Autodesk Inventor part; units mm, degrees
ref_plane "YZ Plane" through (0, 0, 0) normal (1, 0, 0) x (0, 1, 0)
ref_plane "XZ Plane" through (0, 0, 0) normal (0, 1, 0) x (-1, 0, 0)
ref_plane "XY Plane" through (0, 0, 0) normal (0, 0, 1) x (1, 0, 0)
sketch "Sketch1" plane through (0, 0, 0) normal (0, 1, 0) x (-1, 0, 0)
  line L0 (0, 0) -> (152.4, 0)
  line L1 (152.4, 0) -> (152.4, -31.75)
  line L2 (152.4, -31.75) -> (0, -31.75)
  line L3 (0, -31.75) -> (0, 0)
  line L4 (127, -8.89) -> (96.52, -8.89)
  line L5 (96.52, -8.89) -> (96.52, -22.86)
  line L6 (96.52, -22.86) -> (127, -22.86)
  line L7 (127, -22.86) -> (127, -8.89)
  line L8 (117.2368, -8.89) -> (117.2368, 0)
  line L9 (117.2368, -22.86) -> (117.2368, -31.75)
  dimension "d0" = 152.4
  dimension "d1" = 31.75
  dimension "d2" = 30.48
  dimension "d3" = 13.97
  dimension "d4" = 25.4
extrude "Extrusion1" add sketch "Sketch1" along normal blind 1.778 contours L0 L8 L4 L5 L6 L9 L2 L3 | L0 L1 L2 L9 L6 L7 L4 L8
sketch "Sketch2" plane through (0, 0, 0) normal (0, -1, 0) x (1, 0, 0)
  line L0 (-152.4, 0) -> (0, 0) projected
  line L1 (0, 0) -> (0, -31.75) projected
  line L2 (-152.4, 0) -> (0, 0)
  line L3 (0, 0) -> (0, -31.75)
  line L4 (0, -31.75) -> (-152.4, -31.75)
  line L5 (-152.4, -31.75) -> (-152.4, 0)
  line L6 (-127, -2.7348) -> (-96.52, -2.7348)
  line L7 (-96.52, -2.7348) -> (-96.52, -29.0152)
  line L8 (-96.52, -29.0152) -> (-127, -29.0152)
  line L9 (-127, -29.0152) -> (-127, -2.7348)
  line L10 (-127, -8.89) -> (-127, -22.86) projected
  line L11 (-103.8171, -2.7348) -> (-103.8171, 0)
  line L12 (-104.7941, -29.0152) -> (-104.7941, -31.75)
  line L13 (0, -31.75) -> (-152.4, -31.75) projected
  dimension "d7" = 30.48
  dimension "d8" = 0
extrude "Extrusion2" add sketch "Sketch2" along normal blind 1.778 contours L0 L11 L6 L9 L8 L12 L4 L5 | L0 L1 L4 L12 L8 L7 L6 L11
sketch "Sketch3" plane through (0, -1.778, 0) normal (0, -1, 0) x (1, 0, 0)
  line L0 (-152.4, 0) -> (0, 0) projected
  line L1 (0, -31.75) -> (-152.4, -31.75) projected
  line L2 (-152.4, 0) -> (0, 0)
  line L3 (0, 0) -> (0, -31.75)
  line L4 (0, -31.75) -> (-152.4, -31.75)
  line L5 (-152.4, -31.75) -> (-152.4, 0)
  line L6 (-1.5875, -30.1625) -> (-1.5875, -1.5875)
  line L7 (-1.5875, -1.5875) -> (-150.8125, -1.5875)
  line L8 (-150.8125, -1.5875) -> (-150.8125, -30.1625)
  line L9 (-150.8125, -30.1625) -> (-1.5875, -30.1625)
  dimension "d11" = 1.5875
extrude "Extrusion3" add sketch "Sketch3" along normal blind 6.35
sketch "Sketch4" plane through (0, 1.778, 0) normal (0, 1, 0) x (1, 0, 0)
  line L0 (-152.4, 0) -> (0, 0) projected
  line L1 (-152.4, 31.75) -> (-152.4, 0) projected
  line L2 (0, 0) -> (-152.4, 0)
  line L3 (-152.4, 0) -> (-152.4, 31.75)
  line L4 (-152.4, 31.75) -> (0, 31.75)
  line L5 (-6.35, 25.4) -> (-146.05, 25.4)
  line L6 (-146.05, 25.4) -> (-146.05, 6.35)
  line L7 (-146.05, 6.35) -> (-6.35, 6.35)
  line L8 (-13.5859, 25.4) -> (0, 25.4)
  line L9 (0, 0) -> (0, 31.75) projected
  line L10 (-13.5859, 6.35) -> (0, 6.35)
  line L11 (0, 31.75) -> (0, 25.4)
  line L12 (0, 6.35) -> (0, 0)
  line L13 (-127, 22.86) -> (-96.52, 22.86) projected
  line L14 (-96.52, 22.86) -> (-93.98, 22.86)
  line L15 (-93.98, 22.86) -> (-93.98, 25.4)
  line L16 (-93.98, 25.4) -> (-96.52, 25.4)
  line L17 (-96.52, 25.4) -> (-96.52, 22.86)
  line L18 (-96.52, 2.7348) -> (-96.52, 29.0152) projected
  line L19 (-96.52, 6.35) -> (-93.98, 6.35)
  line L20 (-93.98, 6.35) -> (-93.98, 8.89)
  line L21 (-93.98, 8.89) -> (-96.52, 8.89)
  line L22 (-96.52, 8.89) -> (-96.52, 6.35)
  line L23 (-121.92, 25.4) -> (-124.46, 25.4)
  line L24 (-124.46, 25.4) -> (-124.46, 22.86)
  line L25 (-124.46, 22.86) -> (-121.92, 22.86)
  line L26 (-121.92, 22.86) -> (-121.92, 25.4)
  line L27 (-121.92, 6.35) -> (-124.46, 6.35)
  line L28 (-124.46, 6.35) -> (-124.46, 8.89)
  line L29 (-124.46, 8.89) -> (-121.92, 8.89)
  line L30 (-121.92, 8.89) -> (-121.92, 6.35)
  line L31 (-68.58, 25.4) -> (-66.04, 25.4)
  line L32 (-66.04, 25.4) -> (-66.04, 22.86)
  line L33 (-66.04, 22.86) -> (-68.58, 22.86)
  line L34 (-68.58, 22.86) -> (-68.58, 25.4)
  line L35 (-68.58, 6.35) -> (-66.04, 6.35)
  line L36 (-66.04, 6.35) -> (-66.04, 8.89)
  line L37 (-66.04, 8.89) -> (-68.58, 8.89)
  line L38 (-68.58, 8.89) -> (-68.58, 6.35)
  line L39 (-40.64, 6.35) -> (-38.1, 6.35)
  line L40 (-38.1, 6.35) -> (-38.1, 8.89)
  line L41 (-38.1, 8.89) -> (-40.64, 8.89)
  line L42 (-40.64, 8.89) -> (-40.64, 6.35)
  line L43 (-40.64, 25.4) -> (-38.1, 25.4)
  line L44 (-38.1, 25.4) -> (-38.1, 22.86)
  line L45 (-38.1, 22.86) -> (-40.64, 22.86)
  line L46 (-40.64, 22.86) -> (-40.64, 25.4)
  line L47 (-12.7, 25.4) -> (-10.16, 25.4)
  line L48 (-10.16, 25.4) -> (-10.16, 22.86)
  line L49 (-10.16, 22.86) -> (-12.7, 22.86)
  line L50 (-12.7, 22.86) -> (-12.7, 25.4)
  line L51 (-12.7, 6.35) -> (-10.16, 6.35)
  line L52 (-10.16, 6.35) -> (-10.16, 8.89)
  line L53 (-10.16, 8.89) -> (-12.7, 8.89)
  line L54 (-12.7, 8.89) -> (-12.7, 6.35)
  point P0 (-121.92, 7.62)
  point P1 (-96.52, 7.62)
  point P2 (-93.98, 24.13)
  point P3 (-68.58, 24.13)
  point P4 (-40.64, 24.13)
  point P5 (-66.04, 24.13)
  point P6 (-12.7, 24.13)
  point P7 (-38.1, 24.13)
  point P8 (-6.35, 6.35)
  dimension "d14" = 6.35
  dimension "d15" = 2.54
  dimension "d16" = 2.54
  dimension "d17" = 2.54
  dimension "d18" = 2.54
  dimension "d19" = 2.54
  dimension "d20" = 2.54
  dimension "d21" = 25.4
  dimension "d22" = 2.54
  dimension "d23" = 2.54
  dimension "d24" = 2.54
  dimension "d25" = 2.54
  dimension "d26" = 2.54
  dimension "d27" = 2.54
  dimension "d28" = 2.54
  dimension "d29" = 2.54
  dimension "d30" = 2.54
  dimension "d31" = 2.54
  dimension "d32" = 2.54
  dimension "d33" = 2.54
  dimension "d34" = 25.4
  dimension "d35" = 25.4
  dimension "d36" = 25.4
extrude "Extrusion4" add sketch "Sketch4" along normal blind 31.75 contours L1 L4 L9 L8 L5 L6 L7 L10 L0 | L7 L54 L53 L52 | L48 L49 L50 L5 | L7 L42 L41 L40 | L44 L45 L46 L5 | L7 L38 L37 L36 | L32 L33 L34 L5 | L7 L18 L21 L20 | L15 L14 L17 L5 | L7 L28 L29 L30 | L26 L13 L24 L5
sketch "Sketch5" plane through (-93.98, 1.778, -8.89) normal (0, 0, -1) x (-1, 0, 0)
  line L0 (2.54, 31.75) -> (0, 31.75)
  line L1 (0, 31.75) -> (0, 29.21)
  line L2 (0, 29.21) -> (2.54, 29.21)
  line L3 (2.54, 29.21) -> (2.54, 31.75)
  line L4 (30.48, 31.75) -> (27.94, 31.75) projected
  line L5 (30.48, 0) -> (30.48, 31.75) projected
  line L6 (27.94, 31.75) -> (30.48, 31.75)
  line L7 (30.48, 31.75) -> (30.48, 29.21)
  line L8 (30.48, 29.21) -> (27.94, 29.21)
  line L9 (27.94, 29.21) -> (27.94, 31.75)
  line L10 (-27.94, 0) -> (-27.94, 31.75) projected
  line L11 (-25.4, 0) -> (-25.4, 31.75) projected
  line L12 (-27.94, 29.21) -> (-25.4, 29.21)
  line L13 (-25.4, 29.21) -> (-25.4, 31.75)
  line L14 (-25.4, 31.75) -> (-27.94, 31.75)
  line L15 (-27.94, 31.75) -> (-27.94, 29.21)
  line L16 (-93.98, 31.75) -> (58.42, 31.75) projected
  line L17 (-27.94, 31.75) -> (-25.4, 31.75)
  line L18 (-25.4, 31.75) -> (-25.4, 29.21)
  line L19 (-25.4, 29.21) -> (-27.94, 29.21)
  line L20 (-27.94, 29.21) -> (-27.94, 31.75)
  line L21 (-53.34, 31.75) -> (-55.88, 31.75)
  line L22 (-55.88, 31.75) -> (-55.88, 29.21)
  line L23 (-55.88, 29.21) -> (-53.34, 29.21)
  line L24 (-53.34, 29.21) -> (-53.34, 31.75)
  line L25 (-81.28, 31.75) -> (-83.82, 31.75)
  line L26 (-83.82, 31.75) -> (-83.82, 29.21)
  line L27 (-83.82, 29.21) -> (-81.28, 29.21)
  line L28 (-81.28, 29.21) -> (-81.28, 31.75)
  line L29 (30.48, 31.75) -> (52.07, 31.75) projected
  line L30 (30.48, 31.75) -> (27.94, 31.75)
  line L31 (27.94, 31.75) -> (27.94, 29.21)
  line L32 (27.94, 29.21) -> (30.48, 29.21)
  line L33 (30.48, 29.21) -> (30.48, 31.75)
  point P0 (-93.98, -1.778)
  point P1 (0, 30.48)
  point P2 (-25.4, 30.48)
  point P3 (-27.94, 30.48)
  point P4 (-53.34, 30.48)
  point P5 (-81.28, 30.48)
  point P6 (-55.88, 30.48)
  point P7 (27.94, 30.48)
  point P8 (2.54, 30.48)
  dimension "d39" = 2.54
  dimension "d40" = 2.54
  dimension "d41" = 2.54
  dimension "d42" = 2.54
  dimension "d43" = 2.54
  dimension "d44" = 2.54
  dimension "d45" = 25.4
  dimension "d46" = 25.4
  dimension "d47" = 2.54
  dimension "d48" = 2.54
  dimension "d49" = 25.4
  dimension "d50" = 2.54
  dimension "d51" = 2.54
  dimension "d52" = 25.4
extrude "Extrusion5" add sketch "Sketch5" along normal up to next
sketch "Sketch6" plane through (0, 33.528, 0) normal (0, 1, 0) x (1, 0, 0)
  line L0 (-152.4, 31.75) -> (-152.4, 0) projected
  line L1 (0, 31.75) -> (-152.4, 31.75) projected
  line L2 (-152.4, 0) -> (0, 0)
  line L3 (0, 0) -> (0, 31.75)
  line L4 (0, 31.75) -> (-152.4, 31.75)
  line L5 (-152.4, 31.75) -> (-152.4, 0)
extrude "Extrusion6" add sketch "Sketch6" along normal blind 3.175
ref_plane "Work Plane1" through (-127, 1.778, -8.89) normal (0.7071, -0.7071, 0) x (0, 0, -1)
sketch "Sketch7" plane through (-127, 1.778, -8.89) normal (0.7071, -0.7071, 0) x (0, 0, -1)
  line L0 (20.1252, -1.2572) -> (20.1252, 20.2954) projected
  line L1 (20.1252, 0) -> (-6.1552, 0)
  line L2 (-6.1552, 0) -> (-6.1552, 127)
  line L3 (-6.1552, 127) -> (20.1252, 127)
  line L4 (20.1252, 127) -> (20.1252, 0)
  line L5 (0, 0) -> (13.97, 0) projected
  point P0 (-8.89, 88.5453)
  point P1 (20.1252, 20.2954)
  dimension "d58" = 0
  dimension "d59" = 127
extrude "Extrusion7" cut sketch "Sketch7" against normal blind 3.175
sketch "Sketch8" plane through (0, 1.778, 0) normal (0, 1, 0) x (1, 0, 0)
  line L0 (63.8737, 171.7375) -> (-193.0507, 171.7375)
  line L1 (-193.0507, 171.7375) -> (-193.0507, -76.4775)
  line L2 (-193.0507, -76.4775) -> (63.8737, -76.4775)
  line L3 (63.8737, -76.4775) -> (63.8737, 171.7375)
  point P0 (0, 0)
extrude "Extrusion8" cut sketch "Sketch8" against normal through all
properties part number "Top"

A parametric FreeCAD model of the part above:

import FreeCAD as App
import Part
import Sketcher
from FreeCAD import Vector
Q = App.Units.Quantity


def add_polygon(sketch, points):
    """Adds a closed chain of lines whose ends are joined by coincident constraints."""
    first, n = sketch.GeometryCount, len(points)
    for a, b in zip(points, points[1:] + points[:1]):
        sketch.addGeometry(Part.LineSegment(App.Vector(*a, 0), App.Vector(*b, 0)), False)
    for i in range(n):
        sketch.addConstraint(Sketcher.Constraint("Coincident", first + i, 2, first + (i + 1) % n, 1))

doc = App.newDocument("Part")
body = doc.addObject("PartDesign::Body", "Body")

sketch1 = body.newObject("Sketcher::SketchObject", "Sketch")
sketch1.AttachmentSupport = (doc.getObject("XZ_Plane"), [""])
sketch1.MapMode = "FlatFace"
add_polygon(sketch1, [(0, 0), (0, -32), (-152, -32), (-152, 0)])
add_polygon(sketch1, [(-97, -9), (-127, -9), (-127, -23), (-97, -23)])
sketch1.addConstraint([
    Sketcher.Constraint("Vertical", 0),
    Sketcher.Constraint("Horizontal", 1),
    Sketcher.Constraint("Vertical", 2),
    Sketcher.Constraint("Horizontal", 3),
    Sketcher.Constraint("Horizontal", 4),
    Sketcher.Constraint("Vertical", 5),
    Sketcher.Constraint("Horizontal", 6),
    Sketcher.Constraint("Vertical", 7),
    Sketcher.Constraint("Coincident", 3, 2, -1, 1),
    Sketcher.Constraint("DistanceX", 1, 2, 1, 1, Q("6 in")),
    Sketcher.Constraint("DistanceX", 4, 2, 4, 1, Q("1.2 in")),
    Sketcher.Constraint("DistanceX", 2, 2, 4, 2, Q("1 in")),
    Sketcher.Constraint("DistanceY", 0, 2, 0, 1, Q("1.25 in")),
    Sketcher.Constraint("DistanceY", 5, 2, 5, 1, Q("0.55 in")),
    Sketcher.Constraint("DistanceY", 5, 2, -1, 1, Q("0.9 in")),
])
pad1 = body.newObject("PartDesign::Pad", "Pad")
pad1.Profile = sketch1
pad1.Length = Q("0.07 in")
pad1.Reversed = True

sketch2 = body.newObject("Sketcher::SketchObject", "Sketch001")
sketch2.AttachmentSupport = (doc.getObject("XZ_Plane"), [""])
sketch2.MapMode = "FlatFace"
add_polygon(sketch2, [(-152, 0), (-152, -32), (0, -32), (0, 0)])
add_polygon(sketch2, [(-127, -3), (-97, -3), (-97, -29), (-127, -29)])
sketch2.addConstraint([
    Sketcher.Constraint("Vertical", 0),
    Sketcher.Constraint("Horizontal", 1),
    Sketcher.Constraint("Vertical", 2),
    Sketcher.Constraint("Horizontal", 3),
    Sketcher.Constraint("Horizontal", 4),
    Sketcher.Constraint("Vertical", 5),
    Sketcher.Constraint("Horizontal", 6),
    Sketcher.Constraint("Vertical", 7),
    Sketcher.Constraint("Coincident", 2, 2, -1, 1),
    Sketcher.Constraint("DistanceX", 4, 1, 4, 2, Q("1.2 in")),
    Sketcher.Constraint("DistanceX", 1, 1, 1, 2, Q("6 in")),
    Sketcher.Constraint("DistanceX", 6, 2, -1, 1, Q("5 in")),
    Sketcher.Constraint("DistanceY", 0, 2, 0, 1, Q("1.25 in")),
    Sketcher.Constraint("DistanceY", 5, 2, 5, 1, Q("26.2804 mm")),
    Sketcher.Constraint("DistanceY", 4, 2, -1, 1, Q("2.7348 mm")),
])
pad2 = body.newObject("PartDesign::Pad", "Pad001")
pad2.Profile = sketch2
pad2.Length = Q("0.07 in")

sketch3 = body.newObject("Sketcher::SketchObject", "Sketch002")
sketch3.AttachmentSupport = (doc.getObject("XZ_Plane"), [""])
sketch3.MapMode = "FlatFace"
sketch3.AttachmentOffset = App.Placement(Vector(0, 0, 0.07 * 25.4), App.Rotation())
add_polygon(sketch3, [(0, 0), (-152, 0), (-152, -32), (0, -32)])
add_polygon(sketch3, [(-2, -2), (-2, -30), (-151, -30), (-151, -2)])
sketch3.addConstraint([
    Sketcher.Constraint("Horizontal", 0),
    Sketcher.Constraint("Vertical", 1),
    Sketcher.Constraint("Horizontal", 2),
    Sketcher.Constraint("Vertical", 3),
    Sketcher.Constraint("Vertical", 4),
    Sketcher.Constraint("Horizontal", 5),
    Sketcher.Constraint("Vertical", 6),
    Sketcher.Constraint("Horizontal", 7),
    Sketcher.Constraint("Coincident", 3, 2, -1, 1),
    Sketcher.Constraint("DistanceX", 0, 2, 0, 1, Q("6 in")),
    Sketcher.Constraint("DistanceX", 4, 2, -1, 1, Q("0.0625 in")),
    Sketcher.Constraint("DistanceY", 6, 2, -1, 1, Q("0.0625 in")),
    Sketcher.Constraint("DistanceY", 2, 2, 4, 2, Q("0.0625 in")),
    Sketcher.Constraint("DistanceX", 1, 2, 5, 2, Q("0.0625 in")),
    Sketcher.Constraint("DistanceY", 1, 2, 1, 1, Q("1.25 in")),
])
pad3 = body.newObject("PartDesign::Pad", "Pad002")
pad3.Profile = sketch3
pad3.Length = Q("0.25 in")

sketch4 = body.newObject("Sketcher::SketchObject", "Sketch003")
sketch4.AttachmentSupport = (doc.getObject("XZ_Plane"), [""])
sketch4.MapMode = "FlatFace"
sketch4.AttachmentOffset = App.Placement(Vector(0, 0, -0.07 * 25.4), App.Rotation())
add_polygon(sketch4, [(-152.4, -31.8), (-152.4, 0), (0, 0), (0, -6.3), (-10.2, -6.3), (-10.2, -8.9), (-12.7, -8.9), (-12.7, -6.3), (-38.1, -6.3), (-38.1, -8.9), (-40.6, -8.9), (-40.6, -6.3), (-66, -6.3), (-66, -8.9), (-68.6, -8.9), (-68.6, -6.3), (-94, -6.3), (-94, -8.9), (-96.5, -8.9), (-96.5, -6.3), (-121.9, -6.3), (-121.9, -8.9), (-124.5, -8.9), (-124.5, -6.3), (-146.1, -6.3), (-146.1, -25.4), (-124.5, -25.4), (-124.5, -22.9), (-121.9, -22.9), (-121.9, -25.4), (-96.5, -25.4), (-96.5, -22.9), (-94, -22.9), (-94, -25.4), (-68.6, -25.4), (-68.6, -22.9), (-66, -22.9), (-66, -25.4), (-40.6, -25.4), (-40.6, -22.9), (-38.1, -22.9), (-38.1, -25.4), (-12.7, -25.4), (-12.7, -22.9), (-10.2, -22.9), (-10.2, -25.4), (0, -25.4), (0, -31.8)])
sketch4.addConstraint([
    Sketcher.Constraint("Vertical", 0),
    Sketcher.Constraint("Horizontal", 1),
    Sketcher.Constraint("Vertical", 2),
    Sketcher.Constraint("Horizontal", 3),
    Sketcher.Constraint("Vertical", 4),
    Sketcher.Constraint("Horizontal", 5),
    Sketcher.Constraint("Vertical", 6),
    Sketcher.Constraint("Horizontal", 7),
    Sketcher.Constraint("Vertical", 8),
    Sketcher.Constraint("Horizontal", 9),
    Sketcher.Constraint("Vertical", 10),
    Sketcher.Constraint("Horizontal", 11),
    Sketcher.Constraint("Vertical", 12),
    Sketcher.Constraint("Horizontal", 13),
    Sketcher.Constraint("Vertical", 14),
    Sketcher.Constraint("Horizontal", 15),
    Sketcher.Constraint("Vertical", 16),
    Sketcher.Constraint("Horizontal", 17),
    Sketcher.Constraint("Vertical", 18),
    Sketcher.Constraint("Horizontal", 19),
    Sketcher.Constraint("Vertical", 20),
    Sketcher.Constraint("Horizontal", 21),
    Sketcher.Constraint("Vertical", 22),
    Sketcher.Constraint("Horizontal", 23),
    Sketcher.Constraint("Vertical", 24),
    Sketcher.Constraint("Horizontal", 25),
    Sketcher.Constraint("Vertical", 26),
    Sketcher.Constraint("Horizontal", 27),
    Sketcher.Constraint("Vertical", 28),
    Sketcher.Constraint("Horizontal", 29),
    Sketcher.Constraint("Vertical", 30),
    Sketcher.Constraint("Horizontal", 31),
    Sketcher.Constraint("Vertical", 32),
    Sketcher.Constraint("Horizontal", 33),
    Sketcher.Constraint("Vertical", 34),
    Sketcher.Constraint("Horizontal", 35),
    Sketcher.Constraint("Vertical", 36),
    Sketcher.Constraint("Horizontal", 37),
    Sketcher.Constraint("Vertical", 38),
    Sketcher.Constraint("Horizontal", 39),
    Sketcher.Constraint("Vertical", 40),
    Sketcher.Constraint("Horizontal", 41),
    Sketcher.Constraint("Vertical", 42),
    Sketcher.Constraint("Horizontal", 43),
    Sketcher.Constraint("Vertical", 44),
    Sketcher.Constraint("Horizontal", 45),
    Sketcher.Constraint("Vertical", 46),
    Sketcher.Constraint("Horizontal", 47),
    Sketcher.Constraint("Coincident", 1, 2, -1, 1),
    Sketcher.Constraint("PointOnObject", 45, 2, -2),
    Sketcher.Constraint("Horizontal", 3, 2, 6, 2),
    Sketcher.Constraint("Horizontal", 5, 2, 8, 2),
    Sketcher.Constraint("Horizontal", 7, 2, 10, 2),
    Sketcher.Constraint("Horizontal", 9, 2, 12, 2),
    Sketcher.Constraint("Horizontal", 11, 2, 14, 2),
    Sketcher.Constraint("Horizontal", 13, 2, 16, 2),
    Sketcher.Constraint("Horizontal", 15, 2, 18, 2),
    Sketcher.Constraint("Horizontal", 17, 2, 20, 2),
    Sketcher.Constraint("Horizontal", 19, 2, 22, 2),
    Sketcher.Constraint("Horizontal", 25, 2, 28, 2),
    Sketcher.Constraint("Horizontal", 27, 2, 30, 2),
    Sketcher.Constraint("Horizontal", 29, 2, 32, 2),
    Sketcher.Constraint("Horizontal", 31, 2, 34, 2),
    Sketcher.Constraint("Horizontal", 33, 2, 36, 2),
    Sketcher.Constraint("Horizontal", 35, 2, 38, 2),
    Sketcher.Constraint("Horizontal", 37, 2, 40, 2),
    Sketcher.Constraint("Horizontal", 39, 2, 42, 2),
    Sketcher.Constraint("Horizontal", 41, 2, 44, 2),
    Sketcher.Constraint("Vertical", 22, 2, 25, 2),
    Sketcher.Constraint("Vertical", 20, 2, 27, 2),
    Sketcher.Constraint("Vertical", 18, 2, 29, 2),
    Sketcher.Constraint("Vertical", 16, 2, 31, 2),
    Sketcher.Constraint("Vertical", 14, 2, 33, 2),
    Sketcher.Constraint("Vertical", 12, 2, 35, 2),
    Sketcher.Constraint("Vertical", 10, 2, 37, 2),
    Sketcher.Constraint("Vertical", 8, 2, 39, 2),
    Sketcher.Constraint("Vertical", 6, 2, 41, 2),
    Sketcher.Constraint("Vertical", 4, 2, 43, 2),
    Sketcher.Constraint("Equal", 5, 9),
    Sketcher.Constraint("Equal", 7, 11),
    Sketcher.Constraint("Equal", 9, 13),
    Sketcher.Constraint("Equal", 11, 15),
    Sketcher.Constraint("Equal", 13, 17),
    Sketcher.Constraint("Equal", 15, 19),
    Sketcher.Constraint("Equal", 17, 21),
    Sketcher.Constraint("Equal", 43, 4),
    Sketcher.Constraint("Equal", 22, 26),
    Sketcher.Constraint("Equal", 2, 46),
    Sketcher.Constraint("DistanceX", 7, 2, 7, 1, Q("1 in")),
    Sketcher.Constraint("DistanceX", 5, 2, 5, 1, Q("0.1 in")),
    Sketcher.Constraint("DistanceY", 24, 2, -1, 1, Q("1 in")),
    Sketcher.Constraint("DistanceY", 2, 2, 2, 1, Q("0.25 in")),
    Sketcher.Constraint("DistanceX", 1, 1, 1, 2, Q("6 in")),
    Sketcher.Constraint("DistanceX", 0, 2, 23, 2, Q("0.25 in")),
    Sketcher.Constraint("DistanceX", 3, 2, 3, 1, Q("0.4 in")),
])
pad4 = body.newObject("PartDesign::Pad", "Pad003")
pad4.Profile = sketch4
pad4.Length = Q("1.25 in")
pad4.Reversed = True

sketch5 = body.newObject("Sketcher::SketchObject", "Sketch004")
sketch5.AttachmentSupport = (doc.getObject("XY_Plane"), [""])
sketch5.MapMode = "FlatFace"
sketch5.AttachmentOffset = App.Placement(Vector(0, 0, -0.35 * 25.4), App.Rotation())
add_polygon(sketch5, [(-96.5, 31), (-96.5, 33.5), (-94, 33.5), (-94, 31)])
add_polygon(sketch5, [(-12.7, 31), (-12.7, 33.5), (-10.2, 33.5), (-10.2, 31)])
add_polygon(sketch5, [(-40.6, 31), (-40.6, 33.5), (-38.1, 33.5), (-38.1, 31)])
add_polygon(sketch5, [(-68.6, 31), (-68.6, 33.5), (-66, 33.5), (-66, 31)])
add_polygon(sketch5, [(-124.5, 33.5), (-121.9, 33.5), (-121.9, 31), (-124.5, 31)])
sketch5.addConstraint([
    Sketcher.Constraint("Vertical", 0),
    Sketcher.Constraint("Horizontal", 1),
    Sketcher.Constraint("Vertical", 2),
    Sketcher.Constraint("Horizontal", 3),
    Sketcher.Constraint("Vertical", 4),
    Sketcher.Constraint("Horizontal", 5),
    Sketcher.Constraint("Vertical", 6),
    Sketcher.Constraint("Horizontal", 7),
    Sketcher.Constraint("Vertical", 8),
    Sketcher.Constraint("Horizontal", 9),
    Sketcher.Constraint("Vertical", 10),
    Sketcher.Constraint("Horizontal", 11),
    Sketcher.Constraint("Vertical", 12),
    Sketcher.Constraint("Horizontal", 13),
    Sketcher.Constraint("Vertical", 14),
    Sketcher.Constraint("Horizontal", 15),
    Sketcher.Constraint("Horizontal", 16),
    Sketcher.Constraint("Vertical", 17),
    Sketcher.Constraint("Horizontal", 18),
    Sketcher.Constraint("Vertical", 19),
    Sketcher.Constraint("Horizontal", 1, 2, 4, 2),
    Sketcher.Constraint("Horizontal", 3, 2, 6, 2),
    Sketcher.Constraint("Horizontal", 5, 2, 8, 2),
    Sketcher.Constraint("Horizontal", 7, 2, 10, 2),
    Sketcher.Constraint("Horizontal", 9, 2, 12, 2),
    Sketcher.Constraint("Horizontal", 11, 2, 14, 2),
    Sketcher.Constraint("Horizontal", 13, 2, 16, 2),
    Sketcher.Constraint("Horizontal", 15, 2, 17, 2),
    Sketcher.Constraint("Equal", 3, 5),
    Sketcher.Constraint("Equal", 7, 9),
    Sketcher.Constraint("Equal", 11, 13),
    Sketcher.Constraint("Equal", 15, 16),
    Sketcher.Constraint("Equal", 18, 0),
    Sketcher.Constraint("DistanceX", 1, 1, 1, 2, Q("0.1 in")),
    Sketcher.Constraint("DistanceX", 9, 2, 4, 2, Q("1 in")),
    Sketcher.Constraint("DistanceX", 1, 2, 12, 2, Q("1 in")),
    Sketcher.Constraint("DistanceX", 13, 2, 8, 2, Q("1 in")),
    Sketcher.Constraint("DistanceX", 16, 2, 0, 2, Q("1 in")),
    Sketcher.Constraint("DistanceX", 0, 2, -1, 1, Q("3.8 in")),
    Sketcher.Constraint("DistanceY", -1, 1, 0, 2, Q("1.32 in")),
])
pad5 = body.newObject("PartDesign::Pad", "Pad004")
pad5.Profile = sketch5
pad5.Type = "UpToFirst"
pad5.Reversed = True

sketch6 = body.newObject("Sketcher::SketchObject", "Sketch005")
sketch6.AttachmentSupport = (doc.getObject("XZ_Plane"), [""])
sketch6.MapMode = "FlatFace"
sketch6.AttachmentOffset = App.Placement(Vector(0, 0, -1.32 * 25.4), App.Rotation())
add_polygon(sketch6, [(0, -32), (-152, -32), (-152, 0), (0, 0)])
sketch6.addConstraint([
    Sketcher.Constraint("Horizontal", 0),
    Sketcher.Constraint("Vertical", 1),
    Sketcher.Constraint("Horizontal", 2),
    Sketcher.Constraint("Vertical", 3),
    Sketcher.Constraint("Coincident", 2, 2, -1, 1),
    Sketcher.Constraint("DistanceX", 0, 2, 0, 1, Q("6 in")),
    Sketcher.Constraint("DistanceY", 1, 1, 1, 2, Q("1.25 in")),
])
pad6 = body.newObject("PartDesign::Pad", "Pad005")
pad6.Profile = sketch6
pad6.Length = Q("0.125 in")
pad6.Reversed = True

sketch7 = body.newObject("Sketcher::SketchObject", "Sketch006")
sketch7.Placement = App.Placement(Vector(-127, 1.778, -8.89), App.Rotation(Vector(0, 0, -1), Vector(0.707106781, 0.707106781, 0), Vector(0.707106781, -0.707106781, 0), "ZXY"))
add_polygon(sketch7, [(-6, 0), (20, 0), (20, 127), (-6, 127)])
sketch7.addConstraint([
    Sketcher.Constraint("Horizontal", 0),
    Sketcher.Constraint("Vertical", 1),
    Sketcher.Constraint("Horizontal", 2),
    Sketcher.Constraint("Vertical", 3),
    Sketcher.Constraint("PointOnObject", 0, 2, -1),
    Sketcher.Constraint("DistanceY", 1, 1, 1, 2, Q("5 in")),
    Sketcher.Constraint("DistanceX", 0, 1, 0, 2, Q("26.2804 mm")),
    Sketcher.Constraint("DistanceX", -1, 1, 0, 2, Q("20.1252 mm")),
])
pocket1 = body.newObject("PartDesign::Pocket", "Pocket")
pocket1.Profile = sketch7
pocket1.Length = Q("0.125 in")

sketch8 = body.newObject("Sketcher::SketchObject", "Sketch007")
sketch8.AttachmentSupport = (doc.getObject("XZ_Plane"), [""])
sketch8.MapMode = "FlatFace"
sketch8.AttachmentOffset = App.Placement(Vector(0, 0, -0.07 * 25.4), App.Rotation())
add_polygon(sketch8, [(64, 76), (64, -172), (-193, -172), (-193, 76)])
sketch8.addConstraint([
    Sketcher.Constraint("Vertical", 0),
    Sketcher.Constraint("Horizontal", 1),
    Sketcher.Constraint("Vertical", 2),
    Sketcher.Constraint("Horizontal", 3),
    Sketcher.Constraint("DistanceX", 1, 2, 1, 1, Q("256.9244 mm")),
    Sketcher.Constraint("DistanceY", 0, 2, 0, 1, Q("248.215 mm")),
    Sketcher.Constraint("DistanceX", -1, 1, 0, 2, Q("63.8737 mm")),
    Sketcher.Constraint("DistanceY", 0, 2, -1, 1, Q("171.7375 mm")),
])
pocket2 = body.newObject("PartDesign::Pocket", "Pocket001")
pocket2.Profile = sketch8
pocket2.Type = "ThroughAll"
pocket2.Reversed = True

doc.recompute()
